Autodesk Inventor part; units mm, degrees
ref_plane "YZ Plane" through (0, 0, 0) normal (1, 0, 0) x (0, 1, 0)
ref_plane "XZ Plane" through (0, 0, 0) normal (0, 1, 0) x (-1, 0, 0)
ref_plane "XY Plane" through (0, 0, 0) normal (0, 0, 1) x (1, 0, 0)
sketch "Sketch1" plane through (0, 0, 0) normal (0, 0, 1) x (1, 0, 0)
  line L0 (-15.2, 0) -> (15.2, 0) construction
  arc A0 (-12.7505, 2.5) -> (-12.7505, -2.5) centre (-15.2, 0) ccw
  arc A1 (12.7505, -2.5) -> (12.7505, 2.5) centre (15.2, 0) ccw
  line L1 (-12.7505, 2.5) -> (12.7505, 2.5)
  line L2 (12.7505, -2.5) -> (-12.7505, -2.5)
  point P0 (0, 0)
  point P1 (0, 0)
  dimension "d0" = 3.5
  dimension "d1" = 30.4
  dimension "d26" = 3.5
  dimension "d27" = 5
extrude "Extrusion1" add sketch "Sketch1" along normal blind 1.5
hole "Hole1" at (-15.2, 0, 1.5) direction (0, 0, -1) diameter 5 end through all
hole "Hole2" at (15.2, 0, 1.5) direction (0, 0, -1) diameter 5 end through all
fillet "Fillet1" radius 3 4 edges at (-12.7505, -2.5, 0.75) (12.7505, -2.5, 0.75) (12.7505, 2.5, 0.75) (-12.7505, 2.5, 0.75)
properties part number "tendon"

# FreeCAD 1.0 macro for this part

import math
import FreeCAD as App
import Part
import Sketcher


def edges_at(feature, points):
    """Names of the edges that pass closest to the given points."""
    edges = feature.Shape.Edges
    near = lambda p: min(range(len(edges)), key=lambda i: edges[i].distToShape(Part.Vertex(*p))[0])
    return sorted({f"Edge{near(p) + 1}" for p in points})

doc = App.newDocument("Part")
body = doc.addObject("PartDesign::Body", "Body")

# Sketch on XY plane
sketch1 = doc.addObject("Sketcher::SketchObject", "Sketch")
body.addObject(sketch1)
sketch1.AttachmentSupport = (doc.XY_Plane, [""])
sketch1.MapMode = "FlatFace"
sketch1.addGeometry([
    Part.LineSegment(App.Vector(12.8, 2.5, 0), App.Vector(-12.8, 2.5, 0)),
    Part.ArcOfCircle(Part.Circle(App.Vector(-15.2, 0, 0), App.Vector(0, 0, 1), 3.5), math.radians(46), math.radians(314)),
    Part.LineSegment(App.Vector(-12.8, -2.5, 0), App.Vector(12.8, -2.5, 0)),
    Part.ArcOfCircle(Part.Circle(App.Vector(15.2, 0, 0), App.Vector(0, 0, 1), 3.5), math.radians(-134), math.radians(134)),
], False)
sketch1.addConstraint([
    Sketcher.Constraint("Coincident", 0, 2, 1, 1),
    Sketcher.Constraint("Coincident", 1, 2, 2, 1),
    Sketcher.Constraint("Coincident", 2, 2, 3, 1),
    Sketcher.Constraint("Coincident", 3, 2, 0, 1),
    Sketcher.Constraint("Horizontal", 0),
    Sketcher.Constraint("Horizontal", 2),
    Sketcher.Constraint("Equal", 1, 3),
    Sketcher.Constraint("Symmetric", 1, 3, 3, 3, -1, 1),
    Sketcher.Constraint("Symmetric", 0, 2, 1, 2, -1),
    Sketcher.Constraint("Radius", 1, 3.5),
    Sketcher.Constraint("DistanceY", 1, 2, 0, 2, 5.0),
    Sketcher.Constraint("DistanceX", 1, 3, 3, 3, 30.4),
])
pad1 = doc.addObject("PartDesign::Pad", "Pad")
body.addObject(pad1)
pad1.Profile = sketch1
pad1.Length = 1.5

# Sketch on XY plane
sketch2 = doc.addObject("Sketcher::SketchObject", "Sketch001")
body.addObject(sketch2)
sketch2.AttachmentSupport = (doc.XY_Plane, [""])
sketch2.MapMode = "FlatFace"
sketch2.AttachmentOffset = App.Placement(App.Vector(0, 0, 1.5), App.Rotation())
sketch2.addGeometry(Part.Circle(App.Vector(-15.2, 0, 0), App.Vector(0, 0, 1), 2.5), False)
sketch2.addConstraint([
    Sketcher.Constraint("PointOnObject", 0, 3, -1),
    Sketcher.Constraint("Diameter", 0, 5.0),
    Sketcher.Constraint("DistanceX", 0, 3, -1, 1, 15.2),
])
doc.recompute()
hole = doc.addObject("PartDesign::Hole", "Hole")
body.addObject(hole)
hole.Profile = sketch2
hole.ThreadType = "None"
hole.Diameter = 5
hole.DepthType = "ThroughAll"

# Sketch on XY plane
sketch3 = doc.addObject("Sketcher::SketchObject", "Sketch002")
body.addObject(sketch3)
sketch3.AttachmentSupport = (doc.XY_Plane, [""])
sketch3.MapMode = "FlatFace"
sketch3.AttachmentOffset = App.Placement(App.Vector(0, 0, 1.5), App.Rotation())
sketch3.addGeometry(Part.Circle(App.Vector(15.2, 0, 0), App.Vector(0, 0, 1), 2.5), False)
sketch3.addConstraint([
    Sketcher.Constraint("PointOnObject", 0, 3, -1),
    Sketcher.Constraint("Diameter", 0, 5.0),
    Sketcher.Constraint("DistanceX", -1, 1, 0, 3, 15.2),
])
doc.recompute()
hole2 = doc.addObject("PartDesign::Hole", "Hole001")
body.addObject(hole2)
hole2.Profile = sketch3
hole2.ThreadType = "None"
hole2.Diameter = 5
hole2.DepthType = "ThroughAll"
doc.recompute()

fillet = doc.addObject("PartDesign::Fillet", "Fillet")
body.addObject(fillet)
fillet.Base = (hole2, edges_at(hole2, [
    (-12.751, -2.5, 0.75),
    (12.751, -2.5, 0.75),
    (12.751, 2.5, 0.75),
    (-12.751, 2.5, 0.75),
]))
fillet.Radius = 3

doc.recompute()
